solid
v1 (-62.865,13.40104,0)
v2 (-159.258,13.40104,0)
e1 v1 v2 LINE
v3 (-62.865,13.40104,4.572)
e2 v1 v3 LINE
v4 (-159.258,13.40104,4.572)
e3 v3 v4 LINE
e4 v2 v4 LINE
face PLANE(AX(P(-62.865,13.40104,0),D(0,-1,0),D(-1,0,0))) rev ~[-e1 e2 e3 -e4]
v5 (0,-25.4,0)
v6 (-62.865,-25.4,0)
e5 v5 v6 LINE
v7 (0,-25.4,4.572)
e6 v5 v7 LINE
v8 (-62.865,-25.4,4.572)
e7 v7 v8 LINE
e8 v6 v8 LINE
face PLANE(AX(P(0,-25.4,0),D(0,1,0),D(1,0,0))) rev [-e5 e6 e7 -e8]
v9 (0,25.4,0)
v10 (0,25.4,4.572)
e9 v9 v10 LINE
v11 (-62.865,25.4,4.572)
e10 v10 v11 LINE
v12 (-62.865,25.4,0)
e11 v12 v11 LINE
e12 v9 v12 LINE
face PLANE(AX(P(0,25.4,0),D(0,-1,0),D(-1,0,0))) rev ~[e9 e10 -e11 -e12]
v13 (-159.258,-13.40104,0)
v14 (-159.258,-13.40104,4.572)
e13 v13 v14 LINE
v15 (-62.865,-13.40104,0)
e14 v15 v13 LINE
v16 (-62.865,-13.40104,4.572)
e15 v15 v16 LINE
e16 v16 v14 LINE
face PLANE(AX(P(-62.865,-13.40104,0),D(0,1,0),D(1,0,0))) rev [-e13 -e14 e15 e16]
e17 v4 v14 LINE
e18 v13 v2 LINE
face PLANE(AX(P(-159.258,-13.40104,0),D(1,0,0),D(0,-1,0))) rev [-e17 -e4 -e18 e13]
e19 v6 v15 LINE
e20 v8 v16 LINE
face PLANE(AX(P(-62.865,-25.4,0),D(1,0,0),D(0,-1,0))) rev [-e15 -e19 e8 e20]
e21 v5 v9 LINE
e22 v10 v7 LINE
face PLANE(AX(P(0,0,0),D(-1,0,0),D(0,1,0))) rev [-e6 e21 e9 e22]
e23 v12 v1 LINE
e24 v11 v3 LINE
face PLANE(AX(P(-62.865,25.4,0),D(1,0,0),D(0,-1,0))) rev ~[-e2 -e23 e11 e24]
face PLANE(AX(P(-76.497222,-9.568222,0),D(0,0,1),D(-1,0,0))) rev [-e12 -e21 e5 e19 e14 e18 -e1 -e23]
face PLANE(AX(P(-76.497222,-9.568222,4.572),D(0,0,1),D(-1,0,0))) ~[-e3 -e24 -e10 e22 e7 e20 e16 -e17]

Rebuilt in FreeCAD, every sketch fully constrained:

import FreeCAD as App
import Part
import Sketcher
Q = App.Units.Quantity

doc = App.newDocument("Part")
body = doc.addObject("PartDesign::Body", "Body")

sketch1 = doc.addObject("Sketcher::SketchObject", "Sketch")
body.addObject(sketch1)
sketch1.AttachmentSupport = (doc.XY_Plane, [""])
sketch1.MapMode = "FlatFace"
sketch1.addGeometry(Part.LineSegment(App.Vector(-159, 0, 0), App.Vector(0, 0, 0)), False)
sketch1.addGeometry(Part.LineSegment(App.Vector(0, 0, 0), App.Vector(0, 25, 0)), False)
sketch1.addGeometry(Part.LineSegment(App.Vector(0, 25, 0), App.Vector(-63, 25, 0)), False)
sketch1.addGeometry(Part.LineSegment(App.Vector(-63, 25, 0), App.Vector(-63, 13, 0)), False)
sketch1.addGeometry(Part.LineSegment(App.Vector(-63, 13, 0), App.Vector(-159, 13, 0)), False)
sketch1.addGeometry(Part.LineSegment(App.Vector(-159, 13, 0), App.Vector(-159, 0, 0)), False)
sketch1.addConstraint(Sketcher.Constraint("Coincident", 0, 2, 1, 1))
sketch1.addConstraint(Sketcher.Constraint("Coincident", 1, 2, 2, 1))
sketch1.addConstraint(Sketcher.Constraint("Coincident", 2, 2, 3, 1))
sketch1.addConstraint(Sketcher.Constraint("Coincident", 3, 2, 4, 1))
sketch1.addConstraint(Sketcher.Constraint("Coincident", 4, 2, 5, 1))
sketch1.addConstraint(Sketcher.Constraint("Coincident", 5, 2, 0, 1))
sketch1.addConstraint(Sketcher.Constraint("Horizontal", 0))
sketch1.addConstraint(Sketcher.Constraint("Vertical", 1))
sketch1.addConstraint(Sketcher.Constraint("Horizontal", 2))
sketch1.addConstraint(Sketcher.Constraint("Vertical", 3))
sketch1.addConstraint(Sketcher.Constraint("Horizontal", 4))
sketch1.addConstraint(Sketcher.Constraint("Vertical", 5))
sketch1.addConstraint(Sketcher.Constraint("Coincident", 0, 2, -1, 1))
sketch1.addConstraint(Sketcher.Constraint("DistanceY", 1, 1, 1, 2, Q("1 in")))
sketch1.addConstraint(Sketcher.Constraint("DistanceX", 0, 1, 0, 2, Q("6.27 in")))
sketch1.addConstraint(Sketcher.Constraint("DistanceX", 2, 2, 2, 1, Q("2.475 in")))
sketch1.addConstraint(Sketcher.Constraint("DistanceY", 3, 2, 3, 1, Q("0.4724 in")))
pad1 = doc.addObject("PartDesign::Pad", "Pad")
body.addObject(pad1)
pad1.Profile = sketch1
pad1.Length = Q("0.18 in")
body2 = doc.addObject("PartDesign::Body", "Body001")
doc.recompute()

body2.BaseFeature = body
doc.recompute()

mirroring = doc.addObject("Part::Mirroring", "Mirroring")
mirroring.Source = body
mirroring.Base = App.Vector(-79.629, 0, 2.286)
mirroring.Normal = App.Vector(0, -1, 0)
body3 = doc.addObject("PartDesign::Body", "Body002")
body3.BaseFeature = mirroring
boolean = doc.addObject("PartDesign::Boolean", "Boolean")
body2.addObject(boolean)
boolean.Type = "Fuse"
boolean.addObjects([body3])
doc.recompute()
mirroring.Visibility = False

doc.recompute()
